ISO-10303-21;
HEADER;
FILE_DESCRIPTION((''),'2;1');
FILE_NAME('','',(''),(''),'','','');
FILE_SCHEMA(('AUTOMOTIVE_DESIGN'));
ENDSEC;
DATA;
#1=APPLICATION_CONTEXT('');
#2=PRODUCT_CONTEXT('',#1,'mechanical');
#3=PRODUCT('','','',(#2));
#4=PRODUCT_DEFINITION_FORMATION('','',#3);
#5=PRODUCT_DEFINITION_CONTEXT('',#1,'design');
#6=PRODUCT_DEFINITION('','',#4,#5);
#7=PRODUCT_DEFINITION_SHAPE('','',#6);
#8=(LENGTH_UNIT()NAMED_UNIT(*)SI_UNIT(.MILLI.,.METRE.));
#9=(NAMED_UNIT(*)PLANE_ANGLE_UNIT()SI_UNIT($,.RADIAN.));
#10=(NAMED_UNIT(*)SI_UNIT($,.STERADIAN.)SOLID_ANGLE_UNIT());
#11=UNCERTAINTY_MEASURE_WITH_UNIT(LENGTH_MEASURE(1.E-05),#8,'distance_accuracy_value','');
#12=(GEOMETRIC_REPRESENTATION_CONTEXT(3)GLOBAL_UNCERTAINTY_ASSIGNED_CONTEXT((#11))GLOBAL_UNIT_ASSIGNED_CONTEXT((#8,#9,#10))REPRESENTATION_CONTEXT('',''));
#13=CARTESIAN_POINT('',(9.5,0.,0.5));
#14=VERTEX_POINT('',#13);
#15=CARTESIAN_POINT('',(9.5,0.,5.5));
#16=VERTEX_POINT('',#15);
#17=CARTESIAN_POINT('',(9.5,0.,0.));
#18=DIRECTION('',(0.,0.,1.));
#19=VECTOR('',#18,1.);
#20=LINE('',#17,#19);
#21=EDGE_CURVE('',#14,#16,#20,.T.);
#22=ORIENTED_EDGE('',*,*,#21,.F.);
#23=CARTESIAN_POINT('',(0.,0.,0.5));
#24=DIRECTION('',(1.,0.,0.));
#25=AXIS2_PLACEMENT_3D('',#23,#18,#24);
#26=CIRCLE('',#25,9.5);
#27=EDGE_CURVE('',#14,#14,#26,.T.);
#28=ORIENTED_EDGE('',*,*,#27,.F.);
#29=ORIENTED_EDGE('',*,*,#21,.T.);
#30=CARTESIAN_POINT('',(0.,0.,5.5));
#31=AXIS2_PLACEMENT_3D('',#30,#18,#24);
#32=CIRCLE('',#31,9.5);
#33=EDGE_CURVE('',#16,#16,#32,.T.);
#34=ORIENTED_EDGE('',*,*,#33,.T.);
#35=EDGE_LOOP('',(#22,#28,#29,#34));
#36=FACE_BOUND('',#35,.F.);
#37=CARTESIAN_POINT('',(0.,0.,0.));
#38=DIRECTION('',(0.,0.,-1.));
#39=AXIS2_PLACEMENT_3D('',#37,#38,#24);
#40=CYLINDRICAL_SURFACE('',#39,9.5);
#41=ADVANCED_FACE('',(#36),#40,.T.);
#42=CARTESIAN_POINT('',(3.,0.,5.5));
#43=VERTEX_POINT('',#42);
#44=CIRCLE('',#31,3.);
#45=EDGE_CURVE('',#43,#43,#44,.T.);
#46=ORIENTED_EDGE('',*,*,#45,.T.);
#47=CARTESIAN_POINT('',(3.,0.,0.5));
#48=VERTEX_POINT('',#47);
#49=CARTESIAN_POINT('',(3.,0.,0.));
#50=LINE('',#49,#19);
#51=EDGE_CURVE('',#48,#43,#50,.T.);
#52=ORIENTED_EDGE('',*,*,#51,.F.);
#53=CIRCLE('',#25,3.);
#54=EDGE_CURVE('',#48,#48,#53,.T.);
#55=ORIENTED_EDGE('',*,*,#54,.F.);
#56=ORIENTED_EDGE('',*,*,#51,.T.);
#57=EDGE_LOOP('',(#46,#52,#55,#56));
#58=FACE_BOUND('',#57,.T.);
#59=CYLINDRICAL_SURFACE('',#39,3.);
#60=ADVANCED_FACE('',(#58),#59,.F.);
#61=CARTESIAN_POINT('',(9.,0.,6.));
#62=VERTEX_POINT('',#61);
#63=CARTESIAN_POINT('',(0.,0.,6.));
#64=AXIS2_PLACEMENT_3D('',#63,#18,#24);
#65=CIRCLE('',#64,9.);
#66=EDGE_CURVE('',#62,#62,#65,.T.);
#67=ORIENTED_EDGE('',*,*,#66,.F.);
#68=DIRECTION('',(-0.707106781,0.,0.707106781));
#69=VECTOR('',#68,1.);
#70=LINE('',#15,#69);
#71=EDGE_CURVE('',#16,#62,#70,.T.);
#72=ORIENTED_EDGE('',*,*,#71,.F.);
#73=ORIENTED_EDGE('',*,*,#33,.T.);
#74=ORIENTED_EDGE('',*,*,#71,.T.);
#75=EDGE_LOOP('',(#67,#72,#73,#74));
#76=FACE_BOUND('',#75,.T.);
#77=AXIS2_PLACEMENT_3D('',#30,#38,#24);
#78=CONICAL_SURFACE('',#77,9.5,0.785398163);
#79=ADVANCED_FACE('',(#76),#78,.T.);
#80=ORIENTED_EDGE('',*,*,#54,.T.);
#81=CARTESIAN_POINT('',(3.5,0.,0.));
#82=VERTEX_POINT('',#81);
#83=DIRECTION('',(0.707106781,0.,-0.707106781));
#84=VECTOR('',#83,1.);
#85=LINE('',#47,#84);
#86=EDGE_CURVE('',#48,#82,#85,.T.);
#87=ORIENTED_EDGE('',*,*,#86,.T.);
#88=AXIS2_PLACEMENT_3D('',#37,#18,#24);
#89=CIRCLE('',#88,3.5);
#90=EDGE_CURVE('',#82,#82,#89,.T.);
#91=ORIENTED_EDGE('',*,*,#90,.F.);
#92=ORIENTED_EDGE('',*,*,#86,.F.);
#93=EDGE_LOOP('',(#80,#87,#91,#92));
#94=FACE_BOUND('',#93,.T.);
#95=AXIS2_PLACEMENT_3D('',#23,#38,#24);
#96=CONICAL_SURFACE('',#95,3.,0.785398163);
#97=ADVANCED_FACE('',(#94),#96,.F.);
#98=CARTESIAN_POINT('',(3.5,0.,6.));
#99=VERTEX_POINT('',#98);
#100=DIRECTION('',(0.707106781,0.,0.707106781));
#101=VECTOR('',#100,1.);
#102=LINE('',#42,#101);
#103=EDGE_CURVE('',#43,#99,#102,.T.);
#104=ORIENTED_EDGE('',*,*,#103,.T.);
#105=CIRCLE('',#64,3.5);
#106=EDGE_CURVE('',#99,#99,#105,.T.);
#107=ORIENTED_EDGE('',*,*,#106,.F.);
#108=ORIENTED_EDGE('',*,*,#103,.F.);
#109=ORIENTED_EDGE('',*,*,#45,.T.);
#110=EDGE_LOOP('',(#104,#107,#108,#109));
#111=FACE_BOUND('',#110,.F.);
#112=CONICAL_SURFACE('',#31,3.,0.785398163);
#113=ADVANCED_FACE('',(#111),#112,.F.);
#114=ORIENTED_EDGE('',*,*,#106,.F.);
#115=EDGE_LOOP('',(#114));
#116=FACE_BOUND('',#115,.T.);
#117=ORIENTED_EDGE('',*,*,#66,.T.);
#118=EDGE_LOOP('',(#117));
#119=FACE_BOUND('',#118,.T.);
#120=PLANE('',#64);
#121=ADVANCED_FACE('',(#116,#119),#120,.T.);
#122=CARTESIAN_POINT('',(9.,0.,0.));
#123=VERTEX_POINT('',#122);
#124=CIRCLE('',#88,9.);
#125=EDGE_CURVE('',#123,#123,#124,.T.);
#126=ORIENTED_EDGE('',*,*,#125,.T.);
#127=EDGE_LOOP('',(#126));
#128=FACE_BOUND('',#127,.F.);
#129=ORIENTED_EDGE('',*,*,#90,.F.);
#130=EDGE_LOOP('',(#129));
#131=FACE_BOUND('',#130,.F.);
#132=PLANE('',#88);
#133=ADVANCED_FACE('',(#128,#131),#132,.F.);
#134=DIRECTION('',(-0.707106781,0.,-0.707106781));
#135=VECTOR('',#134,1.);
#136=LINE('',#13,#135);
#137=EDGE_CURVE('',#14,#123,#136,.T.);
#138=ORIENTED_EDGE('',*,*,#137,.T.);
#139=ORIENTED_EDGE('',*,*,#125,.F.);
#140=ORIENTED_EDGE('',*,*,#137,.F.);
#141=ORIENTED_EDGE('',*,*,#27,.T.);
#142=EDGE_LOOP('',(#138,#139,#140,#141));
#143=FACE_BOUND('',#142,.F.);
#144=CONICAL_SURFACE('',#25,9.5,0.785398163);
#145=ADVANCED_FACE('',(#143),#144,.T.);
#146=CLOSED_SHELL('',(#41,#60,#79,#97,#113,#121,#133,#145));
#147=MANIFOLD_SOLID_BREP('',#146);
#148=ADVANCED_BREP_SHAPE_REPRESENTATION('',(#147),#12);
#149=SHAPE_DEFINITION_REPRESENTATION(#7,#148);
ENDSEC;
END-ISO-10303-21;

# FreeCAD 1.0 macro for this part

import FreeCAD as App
import Part
import Sketcher

V = App.Vector


def edges_at(feature, points):
    """Names of the edges that pass closest to the given points."""
    edges = feature.Shape.Edges
    near = lambda p: min(range(len(edges)), key=lambda i: edges[i].distToShape(Part.Vertex(*p))[0])
    return sorted({f"Edge{near(p) + 1}" for p in points})

doc = App.newDocument("Part")
body = doc.addObject("PartDesign::Body", "Body")

# Sketch on XY plane
sketch1 = body.newObject("Sketcher::SketchObject", "Sketch")
sketch1.AttachmentSupport = (doc.getObject("XY_Plane"), [""])
sketch1.MapMode = "FlatFace"
sketch1.addGeometry([
    Part.Circle(V(0, 0, 0), V(0, 0, 1), 9.5),
    Part.Circle(V(0, 0, 0), V(0, 0, 1), 3),
], False)
sketch1.addConstraint([
    Sketcher.Constraint("Coincident", 0, 3, -1, 1),
    Sketcher.Constraint("Coincident", 1, 3, -1, 1),
    Sketcher.Constraint("Diameter", 0, 19.0),
    Sketcher.Constraint("Diameter", 1, 6.0),
])
pad1 = body.newObject("PartDesign::Pad", "Pad")
pad1.Profile = sketch1
pad1.Length = 6
doc.recompute()

chamfer = body.newObject("PartDesign::Chamfer", "Chamfer")
chamfer.Base = (pad1, edges_at(pad1, [
    (-9.5, 0, 6),
    (-9.5, 0, 0),
    (-3, 0, 6),
    (-3, 0, 0),
]))
chamfer.Size = 0.5

doc.recompute()
